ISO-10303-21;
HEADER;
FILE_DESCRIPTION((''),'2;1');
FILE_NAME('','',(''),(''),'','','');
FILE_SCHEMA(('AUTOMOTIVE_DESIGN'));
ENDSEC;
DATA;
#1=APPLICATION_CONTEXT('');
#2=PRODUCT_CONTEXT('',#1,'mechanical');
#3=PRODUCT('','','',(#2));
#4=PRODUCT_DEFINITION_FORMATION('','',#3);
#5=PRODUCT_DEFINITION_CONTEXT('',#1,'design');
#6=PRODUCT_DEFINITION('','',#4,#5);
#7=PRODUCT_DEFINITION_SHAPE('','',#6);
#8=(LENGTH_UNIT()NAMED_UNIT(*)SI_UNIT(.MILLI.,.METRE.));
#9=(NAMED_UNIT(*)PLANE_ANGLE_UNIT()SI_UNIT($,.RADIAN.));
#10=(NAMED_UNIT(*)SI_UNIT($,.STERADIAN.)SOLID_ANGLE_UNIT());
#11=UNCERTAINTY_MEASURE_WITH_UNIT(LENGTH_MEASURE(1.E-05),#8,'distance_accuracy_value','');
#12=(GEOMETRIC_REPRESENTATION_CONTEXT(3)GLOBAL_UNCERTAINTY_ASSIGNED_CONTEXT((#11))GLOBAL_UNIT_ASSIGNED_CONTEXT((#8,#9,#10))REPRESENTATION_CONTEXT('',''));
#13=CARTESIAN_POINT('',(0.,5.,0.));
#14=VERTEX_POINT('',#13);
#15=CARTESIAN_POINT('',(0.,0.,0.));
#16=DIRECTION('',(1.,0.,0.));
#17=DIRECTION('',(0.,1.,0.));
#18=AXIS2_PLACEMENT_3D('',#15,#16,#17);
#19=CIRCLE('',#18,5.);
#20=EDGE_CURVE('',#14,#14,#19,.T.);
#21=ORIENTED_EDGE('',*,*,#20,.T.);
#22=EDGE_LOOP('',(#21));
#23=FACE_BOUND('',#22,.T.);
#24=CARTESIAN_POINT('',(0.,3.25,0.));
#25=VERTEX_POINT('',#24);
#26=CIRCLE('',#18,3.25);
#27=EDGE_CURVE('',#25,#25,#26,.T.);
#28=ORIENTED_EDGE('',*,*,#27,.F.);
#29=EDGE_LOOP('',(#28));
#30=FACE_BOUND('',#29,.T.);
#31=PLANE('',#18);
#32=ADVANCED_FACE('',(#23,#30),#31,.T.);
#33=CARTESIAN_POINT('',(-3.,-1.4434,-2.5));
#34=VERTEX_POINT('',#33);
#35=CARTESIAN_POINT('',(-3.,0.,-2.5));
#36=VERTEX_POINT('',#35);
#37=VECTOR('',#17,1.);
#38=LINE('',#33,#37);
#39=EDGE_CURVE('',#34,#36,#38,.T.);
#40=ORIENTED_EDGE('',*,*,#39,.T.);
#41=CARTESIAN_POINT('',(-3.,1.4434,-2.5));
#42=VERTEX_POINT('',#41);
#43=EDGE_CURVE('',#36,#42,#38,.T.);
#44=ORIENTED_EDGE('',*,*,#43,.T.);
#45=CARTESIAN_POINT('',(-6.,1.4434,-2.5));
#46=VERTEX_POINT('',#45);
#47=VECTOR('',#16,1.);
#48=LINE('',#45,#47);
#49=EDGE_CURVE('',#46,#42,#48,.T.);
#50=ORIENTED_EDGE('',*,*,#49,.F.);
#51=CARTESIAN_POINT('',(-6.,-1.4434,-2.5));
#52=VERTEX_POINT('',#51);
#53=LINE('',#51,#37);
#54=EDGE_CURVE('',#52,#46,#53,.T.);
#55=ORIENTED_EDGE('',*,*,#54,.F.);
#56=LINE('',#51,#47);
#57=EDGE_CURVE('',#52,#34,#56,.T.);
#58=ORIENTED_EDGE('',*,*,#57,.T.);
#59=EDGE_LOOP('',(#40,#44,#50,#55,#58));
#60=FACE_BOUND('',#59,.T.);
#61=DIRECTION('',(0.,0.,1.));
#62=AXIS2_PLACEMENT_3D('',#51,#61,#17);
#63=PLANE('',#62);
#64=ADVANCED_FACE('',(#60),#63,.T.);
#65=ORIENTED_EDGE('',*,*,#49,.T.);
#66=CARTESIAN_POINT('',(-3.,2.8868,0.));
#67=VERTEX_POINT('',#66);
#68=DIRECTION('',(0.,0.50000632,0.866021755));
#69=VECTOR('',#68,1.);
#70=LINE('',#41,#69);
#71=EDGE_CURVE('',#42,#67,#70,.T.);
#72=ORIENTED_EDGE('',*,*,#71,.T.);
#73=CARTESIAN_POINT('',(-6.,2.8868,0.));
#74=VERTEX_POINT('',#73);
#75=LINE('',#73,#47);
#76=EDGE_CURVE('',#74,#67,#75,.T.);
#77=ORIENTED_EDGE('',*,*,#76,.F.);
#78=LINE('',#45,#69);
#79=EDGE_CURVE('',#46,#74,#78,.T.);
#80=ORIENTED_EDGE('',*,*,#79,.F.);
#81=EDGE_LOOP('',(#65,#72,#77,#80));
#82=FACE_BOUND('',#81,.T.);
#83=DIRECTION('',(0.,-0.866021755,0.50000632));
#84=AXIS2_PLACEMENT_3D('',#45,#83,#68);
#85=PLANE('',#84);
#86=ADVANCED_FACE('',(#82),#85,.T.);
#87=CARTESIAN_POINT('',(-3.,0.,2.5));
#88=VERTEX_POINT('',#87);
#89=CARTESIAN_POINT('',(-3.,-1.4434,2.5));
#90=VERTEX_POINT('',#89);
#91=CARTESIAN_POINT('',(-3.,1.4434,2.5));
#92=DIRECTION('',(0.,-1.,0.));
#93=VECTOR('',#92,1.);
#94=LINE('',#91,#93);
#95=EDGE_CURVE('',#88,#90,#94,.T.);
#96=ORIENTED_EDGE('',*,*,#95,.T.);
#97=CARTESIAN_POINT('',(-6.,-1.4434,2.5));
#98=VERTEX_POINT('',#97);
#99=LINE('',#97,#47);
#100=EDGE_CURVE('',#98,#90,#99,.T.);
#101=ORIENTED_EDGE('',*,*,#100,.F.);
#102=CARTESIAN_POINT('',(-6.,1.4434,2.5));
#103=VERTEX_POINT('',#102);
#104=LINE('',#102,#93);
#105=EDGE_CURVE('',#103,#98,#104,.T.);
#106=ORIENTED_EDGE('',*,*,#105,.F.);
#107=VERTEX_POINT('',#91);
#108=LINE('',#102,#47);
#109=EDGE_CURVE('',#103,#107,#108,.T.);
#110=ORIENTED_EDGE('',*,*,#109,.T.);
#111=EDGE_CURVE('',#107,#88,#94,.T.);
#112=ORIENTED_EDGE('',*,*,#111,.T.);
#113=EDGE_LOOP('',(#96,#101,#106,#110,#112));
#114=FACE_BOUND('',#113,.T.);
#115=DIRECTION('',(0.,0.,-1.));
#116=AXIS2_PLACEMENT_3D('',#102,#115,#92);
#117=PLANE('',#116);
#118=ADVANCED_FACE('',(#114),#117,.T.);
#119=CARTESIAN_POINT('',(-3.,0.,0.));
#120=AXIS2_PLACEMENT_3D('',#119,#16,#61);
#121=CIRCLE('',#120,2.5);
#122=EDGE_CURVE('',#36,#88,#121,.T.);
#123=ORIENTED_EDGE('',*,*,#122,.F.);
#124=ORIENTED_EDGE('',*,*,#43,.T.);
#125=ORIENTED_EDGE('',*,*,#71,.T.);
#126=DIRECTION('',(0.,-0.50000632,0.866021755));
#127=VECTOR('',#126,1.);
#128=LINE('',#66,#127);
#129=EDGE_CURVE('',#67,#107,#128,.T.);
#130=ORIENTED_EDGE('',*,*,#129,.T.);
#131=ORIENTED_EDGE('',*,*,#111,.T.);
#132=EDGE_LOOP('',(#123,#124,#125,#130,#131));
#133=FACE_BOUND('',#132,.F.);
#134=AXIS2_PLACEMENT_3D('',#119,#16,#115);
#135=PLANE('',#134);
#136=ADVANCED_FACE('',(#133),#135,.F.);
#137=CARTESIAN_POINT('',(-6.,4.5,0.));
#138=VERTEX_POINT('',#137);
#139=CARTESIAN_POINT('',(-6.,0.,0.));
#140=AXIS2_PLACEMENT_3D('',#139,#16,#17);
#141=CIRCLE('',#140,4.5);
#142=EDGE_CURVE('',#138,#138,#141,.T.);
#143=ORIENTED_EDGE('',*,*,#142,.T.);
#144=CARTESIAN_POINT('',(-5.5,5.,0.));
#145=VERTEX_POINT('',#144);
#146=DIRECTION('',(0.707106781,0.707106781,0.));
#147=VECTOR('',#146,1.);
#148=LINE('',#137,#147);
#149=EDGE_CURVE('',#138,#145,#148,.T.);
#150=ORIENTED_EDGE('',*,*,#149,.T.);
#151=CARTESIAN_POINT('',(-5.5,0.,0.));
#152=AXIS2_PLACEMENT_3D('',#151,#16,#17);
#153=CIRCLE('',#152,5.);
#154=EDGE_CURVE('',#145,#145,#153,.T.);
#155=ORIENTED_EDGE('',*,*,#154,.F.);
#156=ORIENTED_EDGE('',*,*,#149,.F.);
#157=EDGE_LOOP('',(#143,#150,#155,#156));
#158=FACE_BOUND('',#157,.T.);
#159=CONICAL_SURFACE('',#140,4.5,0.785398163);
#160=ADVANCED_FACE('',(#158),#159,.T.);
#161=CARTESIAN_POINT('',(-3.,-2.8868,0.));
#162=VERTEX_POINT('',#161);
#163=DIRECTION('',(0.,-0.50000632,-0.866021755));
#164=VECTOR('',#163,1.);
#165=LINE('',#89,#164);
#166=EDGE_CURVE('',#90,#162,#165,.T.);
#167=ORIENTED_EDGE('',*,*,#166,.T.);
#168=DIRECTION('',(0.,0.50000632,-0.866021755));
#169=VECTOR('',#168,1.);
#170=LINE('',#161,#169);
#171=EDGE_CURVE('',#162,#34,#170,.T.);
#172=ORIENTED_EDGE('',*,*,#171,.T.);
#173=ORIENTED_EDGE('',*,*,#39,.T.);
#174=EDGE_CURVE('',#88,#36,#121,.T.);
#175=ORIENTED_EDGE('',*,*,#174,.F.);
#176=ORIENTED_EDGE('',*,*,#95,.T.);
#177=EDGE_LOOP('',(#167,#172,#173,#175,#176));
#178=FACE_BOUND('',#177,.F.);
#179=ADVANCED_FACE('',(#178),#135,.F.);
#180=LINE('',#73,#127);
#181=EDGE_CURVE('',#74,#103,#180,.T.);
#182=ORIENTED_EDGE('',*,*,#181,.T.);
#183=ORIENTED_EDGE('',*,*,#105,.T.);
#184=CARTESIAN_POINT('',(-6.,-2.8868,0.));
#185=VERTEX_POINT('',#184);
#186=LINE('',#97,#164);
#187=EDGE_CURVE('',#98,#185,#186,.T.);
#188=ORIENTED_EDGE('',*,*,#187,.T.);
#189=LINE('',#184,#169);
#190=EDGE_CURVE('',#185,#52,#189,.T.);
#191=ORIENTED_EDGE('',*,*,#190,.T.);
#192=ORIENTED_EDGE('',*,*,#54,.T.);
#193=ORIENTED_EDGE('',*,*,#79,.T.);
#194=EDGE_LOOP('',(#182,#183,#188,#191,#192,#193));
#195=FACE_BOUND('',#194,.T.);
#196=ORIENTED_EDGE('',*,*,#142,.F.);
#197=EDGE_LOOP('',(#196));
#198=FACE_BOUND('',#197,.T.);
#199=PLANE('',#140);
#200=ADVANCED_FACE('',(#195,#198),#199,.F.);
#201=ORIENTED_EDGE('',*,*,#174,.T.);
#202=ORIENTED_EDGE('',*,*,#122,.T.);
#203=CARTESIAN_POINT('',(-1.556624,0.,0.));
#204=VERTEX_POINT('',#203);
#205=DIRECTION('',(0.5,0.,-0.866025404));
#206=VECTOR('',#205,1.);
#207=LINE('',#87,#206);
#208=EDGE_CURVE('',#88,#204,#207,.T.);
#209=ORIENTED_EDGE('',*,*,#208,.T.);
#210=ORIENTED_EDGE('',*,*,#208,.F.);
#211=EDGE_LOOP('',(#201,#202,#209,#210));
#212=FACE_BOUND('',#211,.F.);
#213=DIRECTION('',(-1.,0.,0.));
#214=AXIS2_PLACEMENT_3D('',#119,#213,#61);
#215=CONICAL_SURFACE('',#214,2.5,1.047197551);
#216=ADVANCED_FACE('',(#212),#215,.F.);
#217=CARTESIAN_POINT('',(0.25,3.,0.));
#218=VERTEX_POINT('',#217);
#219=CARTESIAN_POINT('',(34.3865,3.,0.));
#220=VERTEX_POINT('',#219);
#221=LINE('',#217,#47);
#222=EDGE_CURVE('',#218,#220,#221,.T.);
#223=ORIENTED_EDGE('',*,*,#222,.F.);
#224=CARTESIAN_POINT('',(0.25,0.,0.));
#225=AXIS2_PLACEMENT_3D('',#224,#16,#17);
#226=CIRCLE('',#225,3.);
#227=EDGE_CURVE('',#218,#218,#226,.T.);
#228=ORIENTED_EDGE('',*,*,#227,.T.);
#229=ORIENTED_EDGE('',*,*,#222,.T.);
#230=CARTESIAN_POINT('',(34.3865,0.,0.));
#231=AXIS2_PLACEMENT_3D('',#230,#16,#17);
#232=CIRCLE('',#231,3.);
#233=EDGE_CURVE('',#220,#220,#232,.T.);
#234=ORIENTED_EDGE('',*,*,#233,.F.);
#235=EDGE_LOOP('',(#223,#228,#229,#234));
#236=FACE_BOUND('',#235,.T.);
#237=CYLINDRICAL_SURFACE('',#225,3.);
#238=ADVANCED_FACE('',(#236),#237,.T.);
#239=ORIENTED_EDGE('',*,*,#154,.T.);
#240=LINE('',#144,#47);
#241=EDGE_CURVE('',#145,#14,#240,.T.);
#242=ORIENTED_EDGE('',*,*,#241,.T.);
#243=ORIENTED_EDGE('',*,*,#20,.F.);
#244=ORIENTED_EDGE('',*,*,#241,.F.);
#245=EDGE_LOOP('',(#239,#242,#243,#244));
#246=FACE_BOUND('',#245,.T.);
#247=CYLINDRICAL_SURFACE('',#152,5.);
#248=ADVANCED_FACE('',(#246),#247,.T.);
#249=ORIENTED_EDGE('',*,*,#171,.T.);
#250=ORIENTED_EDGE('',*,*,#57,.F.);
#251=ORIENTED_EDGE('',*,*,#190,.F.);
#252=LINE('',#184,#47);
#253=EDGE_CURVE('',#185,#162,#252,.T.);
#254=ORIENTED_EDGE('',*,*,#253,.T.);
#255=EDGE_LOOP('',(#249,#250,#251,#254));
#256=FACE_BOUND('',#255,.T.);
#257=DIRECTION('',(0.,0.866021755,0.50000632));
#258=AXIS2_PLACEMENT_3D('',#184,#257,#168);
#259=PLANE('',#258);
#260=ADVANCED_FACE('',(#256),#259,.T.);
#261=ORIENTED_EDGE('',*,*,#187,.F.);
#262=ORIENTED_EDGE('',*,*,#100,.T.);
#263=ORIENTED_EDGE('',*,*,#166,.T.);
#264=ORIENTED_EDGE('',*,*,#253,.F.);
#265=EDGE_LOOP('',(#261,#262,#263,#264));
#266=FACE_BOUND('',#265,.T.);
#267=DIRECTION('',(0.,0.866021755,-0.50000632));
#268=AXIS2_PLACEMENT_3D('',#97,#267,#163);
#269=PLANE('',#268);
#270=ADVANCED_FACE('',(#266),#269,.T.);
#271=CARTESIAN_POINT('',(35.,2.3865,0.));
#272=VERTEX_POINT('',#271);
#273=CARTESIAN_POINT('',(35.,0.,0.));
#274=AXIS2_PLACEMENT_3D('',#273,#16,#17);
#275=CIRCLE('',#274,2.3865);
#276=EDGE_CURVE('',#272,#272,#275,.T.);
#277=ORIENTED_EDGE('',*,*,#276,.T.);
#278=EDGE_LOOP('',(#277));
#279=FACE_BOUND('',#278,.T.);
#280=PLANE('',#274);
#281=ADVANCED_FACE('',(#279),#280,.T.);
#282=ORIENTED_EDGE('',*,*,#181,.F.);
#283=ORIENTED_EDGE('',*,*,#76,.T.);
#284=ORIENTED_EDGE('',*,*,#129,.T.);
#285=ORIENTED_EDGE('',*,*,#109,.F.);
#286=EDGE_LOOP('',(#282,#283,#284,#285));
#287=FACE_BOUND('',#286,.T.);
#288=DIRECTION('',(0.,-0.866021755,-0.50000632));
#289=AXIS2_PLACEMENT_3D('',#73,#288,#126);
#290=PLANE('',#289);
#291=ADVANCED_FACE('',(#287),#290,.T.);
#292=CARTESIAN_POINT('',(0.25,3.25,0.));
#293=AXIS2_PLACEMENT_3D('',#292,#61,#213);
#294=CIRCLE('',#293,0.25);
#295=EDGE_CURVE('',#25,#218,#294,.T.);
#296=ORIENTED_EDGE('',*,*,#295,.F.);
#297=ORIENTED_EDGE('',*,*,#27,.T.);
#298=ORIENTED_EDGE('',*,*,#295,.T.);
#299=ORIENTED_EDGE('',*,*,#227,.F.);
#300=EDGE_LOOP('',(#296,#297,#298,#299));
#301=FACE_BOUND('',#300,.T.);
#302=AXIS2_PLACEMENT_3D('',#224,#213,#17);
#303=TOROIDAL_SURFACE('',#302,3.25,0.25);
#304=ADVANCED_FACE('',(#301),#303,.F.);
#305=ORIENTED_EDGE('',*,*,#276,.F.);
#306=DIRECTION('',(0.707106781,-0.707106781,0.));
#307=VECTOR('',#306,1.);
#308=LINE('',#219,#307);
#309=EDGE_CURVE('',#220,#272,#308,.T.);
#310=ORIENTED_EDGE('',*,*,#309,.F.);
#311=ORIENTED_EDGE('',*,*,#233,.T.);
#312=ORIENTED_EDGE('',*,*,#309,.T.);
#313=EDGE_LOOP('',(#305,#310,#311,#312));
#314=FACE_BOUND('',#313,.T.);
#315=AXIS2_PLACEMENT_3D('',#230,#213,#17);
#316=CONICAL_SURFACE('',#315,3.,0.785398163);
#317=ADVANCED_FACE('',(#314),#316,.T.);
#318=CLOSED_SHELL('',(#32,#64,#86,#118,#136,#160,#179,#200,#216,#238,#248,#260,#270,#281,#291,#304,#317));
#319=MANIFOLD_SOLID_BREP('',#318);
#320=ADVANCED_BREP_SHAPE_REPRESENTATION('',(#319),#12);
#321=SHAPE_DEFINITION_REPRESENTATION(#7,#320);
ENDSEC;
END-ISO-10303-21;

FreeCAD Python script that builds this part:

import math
import FreeCAD as App
import Part
import Sketcher

V = App.Vector
Q = App.Units.Quantity


def add_polygon(sketch, points):
    """Adds a closed chain of lines whose ends are joined by coincident constraints."""
    first, n = sketch.GeometryCount, len(points)
    for a, b in zip(points, points[1:] + points[:1]):
        sketch.addGeometry(Part.LineSegment(App.Vector(*a, 0), App.Vector(*b, 0)), False)
    for i in range(n):
        sketch.addConstraint(Sketcher.Constraint("Coincident", first + i, 2, first + (i + 1) % n, 1))

doc = App.newDocument("Part")
params = doc.addObject("Spreadsheet::Sheet", "Params")
for row, (alias, value) in enumerate([
    ("sketch1_width", "41 mm"),
    ("sketch1_radius", "0.25 mm"),
    ("sketch1_width2", "5.5 mm"),
    ("sketch1_height", "4.5 mm"),
    ("revolution_angle", "360 deg"),
    ("sketch2_diameter", "5 mm"),
    ("hole_diameter", "5 mm"),
    ("hole_depth", "3 mm"),
    ("pocket1_length", "3 mm"),
], start=1):
    params.set(f"A{row}", alias)
    params.set(f"B{row}", "=" + value)
    params.setAlias(f"B{row}", alias)

body = doc.addObject("PartDesign::Body", "Body")

# Sketch on XY plane
sketch1 = body.newObject("Sketcher::SketchObject", "Sketch")
sketch1.AttachmentSupport = (doc.getObject("XY_Plane"), [""])
sketch1.MapMode = "FlatFace"
sketch1.addGeometry(Part.LineSegment(V(-6, 0, 0), V(35, 0, 0)), False)
sketch1.addGeometry(Part.LineSegment(V(35, 0, 0), V(35, 2.39, 0)), False)
sketch1.addGeometry(Part.LineSegment(V(35, 2.39, 0), V(34.39, 3, 0)), False)
sketch1.addGeometry(Part.LineSegment(V(34.39, 3, 0), V(0.25, 3, 0)), False)
sketch1.addGeometry(Part.ArcOfCircle(Part.Circle(V(0.25, 3.25, 0), V(0, 0, 1), 0.25), math.radians(180), math.radians(270)), False)
sketch1.addGeometry(Part.LineSegment(V(0, 3.25, 0), V(0, 5, 0)), False)
sketch1.addGeometry(Part.LineSegment(V(0, 5, 0), V(-5.5, 5, 0)), False)
sketch1.addGeometry(Part.LineSegment(V(-5.5, 5, 0), V(-6, 4.5, 0)), False)
sketch1.addGeometry(Part.LineSegment(V(-6, 4.5, 0), V(-6, 0, 0)), False)
sketch1.addConstraint(Sketcher.Constraint("Coincident", 0, 2, 1, 1))
sketch1.addConstraint(Sketcher.Constraint("Coincident", 1, 2, 2, 1))
sketch1.addConstraint(Sketcher.Constraint("Coincident", 2, 2, 3, 1))
sketch1.addConstraint(Sketcher.Constraint("Tangent", 3, 2, 4, 2))
sketch1.addConstraint(Sketcher.Constraint("Tangent", 4, 1, 5, 1))
sketch1.addConstraint(Sketcher.Constraint("Coincident", 5, 2, 6, 1))
sketch1.addConstraint(Sketcher.Constraint("Coincident", 6, 2, 7, 1))
sketch1.addConstraint(Sketcher.Constraint("Coincident", 7, 2, 8, 1))
sketch1.addConstraint(Sketcher.Constraint("Coincident", 8, 2, 0, 1))
sketch1.addConstraint(Sketcher.Constraint("Horizontal", 0))
sketch1.addConstraint(Sketcher.Constraint("Vertical", 1))
sketch1.addConstraint(Sketcher.Constraint("Horizontal", 3))
sketch1.addConstraint(Sketcher.Constraint("Vertical", 5))
sketch1.addConstraint(Sketcher.Constraint("Horizontal", 6))
sketch1.addConstraint(Sketcher.Constraint("Vertical", 8))
sketch1.addConstraint(Sketcher.Constraint("PointOnObject", 0, 2, -1))
sketch1.addConstraint(Sketcher.Constraint("PointOnObject", 4, 1, -2))
sketch1.addConstraint(Sketcher.Constraint("Perpendicular", 2, 7))
sketch1.addConstraint(Sketcher.Constraint("DistanceX", 0, 1, 0, 2, 41.0))
sketch1.addConstraint(Sketcher.Constraint("Angle", 2, Q("135 deg")))
sketch1.addConstraint(Sketcher.Constraint("Radius", 4, 0.25))
sketch1.addConstraint(Sketcher.Constraint("DistanceX", 6, 2, 6, 1, 5.5))
sketch1.addConstraint(Sketcher.Constraint("DistanceY", 8, 2, 8, 1, 4.5))
sketch1.addConstraint(Sketcher.Constraint("DistanceX", -1, 1, 0, 2, 35.0))
sketch1.addConstraint(Sketcher.Constraint("DistanceY", -1, 1, 2, 2, 3.0))
sketch1.addConstraint(Sketcher.Constraint("DistanceX", 3, 2, 3, 1, 34.1365))
sketch1.setExpression("Constraints[18]", "Params.sketch1_width")
sketch1.setExpression("Constraints[20]", "Params.sketch1_radius")
sketch1.setExpression("Constraints[21]", "Params.sketch1_width2")
sketch1.setExpression("Constraints[22]", "Params.sketch1_height")
revolution = body.newObject("PartDesign::Revolution", "Revolution")
revolution.Profile = sketch1
revolution.ReferenceAxis = (sketch1, ["H_Axis"])
revolution.setExpression("Angle", "Params.revolution_angle")

# Sketch on YZ plane
sketch2 = body.newObject("Sketcher::SketchObject", "Sketch001")
sketch2.AttachmentSupport = (doc.getObject("YZ_Plane"), [""])
sketch2.MapMode = "FlatFace"
sketch2.AttachmentOffset = App.Placement(V(0, 0, -6), App.Rotation())
sketch2.addGeometry(Part.Circle(V(0, 0, 0), V(0, 0, 1), 2.5), False)
sketch2.addConstraint(Sketcher.Constraint("Coincident", 0, 3, -1, 1))
sketch2.addConstraint(Sketcher.Constraint("Diameter", 0, 5.0))
sketch2.setExpression("Constraints[1]", "Params.sketch2_diameter")
doc.recompute()
hole = body.newObject("PartDesign::Hole", "Hole")
hole.Profile = sketch2
hole.ThreadType = "None"
hole.setExpression("Diameter", "Params.hole_diameter")
hole.DepthType = "Dimension"
hole.setExpression("Depth", "Params.hole_depth")
hole.DrillPoint = "Angled"
hole.DrillPointAngle = 120
hole.Reversed = True

# Sketch on YZ plane
sketch3 = body.newObject("Sketcher::SketchObject", "Sketch002")
sketch3.AttachmentSupport = (doc.getObject("YZ_Plane"), [""])
sketch3.MapMode = "FlatFace"
sketch3.AttachmentOffset = App.Placement(V(0, 0, -6), App.Rotation())
add_polygon(sketch3, [(1.4, 2.5), (-1.4, 2.5), (-2.9, 0), (-1.4, -2.5), (1.4, -2.5), (2.9, 0)])  # lines 0-5
sketch3.addConstraint(Sketcher.Constraint("Horizontal", 0))
sketch3.addConstraint(Sketcher.Constraint("Horizontal", 3))
sketch3.addConstraint(Sketcher.Constraint("Symmetric", 0, 2, 3, 2, -1, 1))
sketch3.addConstraint(Sketcher.Constraint("Symmetric", 1, 2, 4, 2, -1, 1))
sketch3.addConstraint(Sketcher.Constraint("PointOnObject", 1, 2, -1))
sketch3.addConstraint(Sketcher.Constraint("Parallel", 2, 5))
sketch3.addConstraint(Sketcher.Constraint("Vertical", 0, 2, 2, 2))
sketch3.addConstraint(Sketcher.Constraint("Angle", 1, Q("-120.0004 deg")))
sketch3.addConstraint(Sketcher.Constraint("DistanceY", 2, 2, 0, 2, 5.0))
sketch3.addConstraint(Sketcher.Constraint("DistanceX", 0, 2, 0, 1, 2.8868))
pocket1 = body.newObject("PartDesign::Pocket", "Pocket")
pocket1.Profile = sketch3
pocket1.setExpression("Length", "Params.pocket1_length")
pocket1.Reversed = True

doc.recompute()
